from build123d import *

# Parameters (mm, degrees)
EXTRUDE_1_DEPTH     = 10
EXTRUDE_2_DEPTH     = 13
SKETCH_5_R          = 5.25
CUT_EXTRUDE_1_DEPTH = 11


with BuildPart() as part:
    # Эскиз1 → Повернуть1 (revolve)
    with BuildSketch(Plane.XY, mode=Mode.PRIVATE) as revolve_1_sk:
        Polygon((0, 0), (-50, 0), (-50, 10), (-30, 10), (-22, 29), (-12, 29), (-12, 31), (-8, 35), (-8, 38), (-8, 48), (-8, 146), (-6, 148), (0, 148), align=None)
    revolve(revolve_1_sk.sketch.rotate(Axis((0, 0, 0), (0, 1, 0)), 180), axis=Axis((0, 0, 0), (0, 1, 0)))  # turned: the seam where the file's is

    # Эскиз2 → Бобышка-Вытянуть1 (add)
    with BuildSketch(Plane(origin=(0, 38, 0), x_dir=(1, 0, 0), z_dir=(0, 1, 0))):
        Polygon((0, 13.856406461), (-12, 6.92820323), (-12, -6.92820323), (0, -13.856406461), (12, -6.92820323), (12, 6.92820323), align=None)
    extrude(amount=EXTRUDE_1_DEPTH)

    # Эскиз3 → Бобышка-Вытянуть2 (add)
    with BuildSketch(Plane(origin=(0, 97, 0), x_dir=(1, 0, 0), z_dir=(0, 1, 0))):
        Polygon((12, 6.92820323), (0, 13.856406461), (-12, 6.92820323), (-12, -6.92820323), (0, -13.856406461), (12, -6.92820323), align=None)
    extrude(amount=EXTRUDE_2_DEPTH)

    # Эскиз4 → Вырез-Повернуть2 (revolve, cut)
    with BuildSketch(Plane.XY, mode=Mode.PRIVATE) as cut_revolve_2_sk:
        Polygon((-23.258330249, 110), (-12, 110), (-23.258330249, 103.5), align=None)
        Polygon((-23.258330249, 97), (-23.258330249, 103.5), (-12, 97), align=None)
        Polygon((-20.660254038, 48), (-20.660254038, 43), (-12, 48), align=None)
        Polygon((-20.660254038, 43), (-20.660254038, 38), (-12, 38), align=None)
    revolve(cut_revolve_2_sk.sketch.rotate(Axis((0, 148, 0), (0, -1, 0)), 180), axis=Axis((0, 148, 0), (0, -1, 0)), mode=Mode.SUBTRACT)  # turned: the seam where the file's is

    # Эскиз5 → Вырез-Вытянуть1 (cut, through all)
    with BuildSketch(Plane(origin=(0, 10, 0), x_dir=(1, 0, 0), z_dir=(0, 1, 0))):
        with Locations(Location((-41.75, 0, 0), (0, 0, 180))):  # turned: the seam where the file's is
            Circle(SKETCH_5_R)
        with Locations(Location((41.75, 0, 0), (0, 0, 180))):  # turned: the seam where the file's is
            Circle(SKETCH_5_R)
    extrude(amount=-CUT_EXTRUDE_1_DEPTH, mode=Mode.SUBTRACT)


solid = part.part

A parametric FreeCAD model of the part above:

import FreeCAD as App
import Part
import Sketcher
Q = App.Units.Quantity


def add_polygon(sketch, points):
    """Adds a closed chain of lines whose ends are joined by coincident constraints."""
    first, n = sketch.GeometryCount, len(points)
    for a, b in zip(points, points[1:] + points[:1]):
        sketch.addGeometry(Part.LineSegment(App.Vector(*a, 0), App.Vector(*b, 0)), False)
    for i in range(n):
        sketch.addConstraint(Sketcher.Constraint("Coincident", first + i, 2, first + (i + 1) % n, 1))

doc = App.newDocument("Part")
body = doc.addObject("PartDesign::Body", "Body")

# Sketch on XY plane
sketch1 = body.newObject("Sketcher::SketchObject", "Sketch")
sketch1.AttachmentSupport = (doc.getObject("XY_Plane"), [""])
sketch1.MapMode = "FlatFace"
add_polygon(sketch1, [(-50, 0), (0, 0), (0, 148), (-6, 148), (-8, 146), (-8, 35), (-12, 31), (-12, 29), (-22, 29), (-30, 10), (-50, 10)])  # lines 0-10
sketch1.addConstraint([
    Sketcher.Constraint("Horizontal", 0),
    Sketcher.Constraint("Vertical", 1),
    Sketcher.Constraint("Horizontal", 2),
    Sketcher.Constraint("Vertical", 4),
    Sketcher.Constraint("Vertical", 6),
    Sketcher.Constraint("Horizontal", 7),
    Sketcher.Constraint("Horizontal", 9),
    Sketcher.Constraint("Vertical", 10),
    Sketcher.Constraint("Coincident", 0, 2, -1, 1),
    Sketcher.Constraint("Parallel", 3, 5),
    Sketcher.Constraint("Equal", 7, 10),
    Sketcher.Constraint("DistanceX", 0, 1, 0, 2, Q("50 mm")),
    Sketcher.Constraint("DistanceX", 2, 2, 2, 1, Q("6 mm")),
    Sketcher.Constraint("DistanceX", 7, 2, 7, 1, Q("10 mm")),
    Sketcher.Constraint("DistanceX", 9, 2, 9, 1, Q("20 mm")),
    Sketcher.Constraint("DistanceY", 1, 1, 1, 2, Q("148 mm")),
    Sketcher.Constraint("DistanceY", 4, 2, 4, 1, Q("111 mm")),
    Sketcher.Constraint("DistanceY", 6, 2, 6, 1, Q("2 mm")),
    Sketcher.Constraint("Angle", 3, Q("-135 deg")),
    Sketcher.Constraint("DistanceX", 3, 2, -1, 1, Q("8 mm")),
    Sketcher.Constraint("DistanceX", 5, 2, -1, 1, Q("12 mm")),
])
revolution = body.newObject("PartDesign::Revolution", "Revolution")
revolution.Profile = sketch1
revolution.ReferenceAxis = (sketch1, ["V_Axis"])
revolution.Angle = 360

# Sketch on XZ plane
sketch2 = body.newObject("Sketcher::SketchObject", "Sketch001")
sketch2.AttachmentSupport = (doc.getObject("XZ_Plane"), [""])
sketch2.MapMode = "FlatFace"
sketch2.AttachmentOffset = App.Placement(App.Vector(0, 0, -38), App.Rotation())
add_polygon(sketch2, [(0, -14), (-12, -7), (-12, 7), (0, 14), (12, 7), (12, -7)])  # lines 0-5
sketch2.addConstraint([
    Sketcher.Constraint("Vertical", 1),
    Sketcher.Constraint("Vertical", 4),
    Sketcher.Constraint("Symmetric", 0, 2, 3, 2, -1, 1),
    Sketcher.Constraint("Symmetric", 2, 2, 5, 2, -1, 1),
    Sketcher.Constraint("PointOnObject", 2, 2, -2),
    Sketcher.Constraint("Parallel", 2, 5),
    Sketcher.Constraint("Horizontal", 1, 2, 3, 2),
    Sketcher.Constraint("Angle", 0, Q("150 deg")),
    Sketcher.Constraint("DistanceX", 0, 2, -1, 1, Q("12 mm")),
    Sketcher.Constraint("DistanceY", 1, 1, 1, 2, Q("13.856406 mm")),
])
pad1 = body.newObject("PartDesign::Pad", "Pad")
pad1.Profile = sketch2
pad1.Length = 10
pad1.Reversed = True

# Sketch on XZ plane
sketch3 = body.newObject("Sketcher::SketchObject", "Sketch002")
sketch3.AttachmentSupport = (doc.getObject("XZ_Plane"), [""])
sketch3.MapMode = "FlatFace"
sketch3.AttachmentOffset = App.Placement(App.Vector(0, 0, -97), App.Rotation())
add_polygon(sketch3, [(12, -7), (0, -14), (-12, -7), (-12, 7), (0, 14), (12, 7)])  # lines 0-5
sketch3.addConstraint([
    Sketcher.Constraint("Vertical", 2),
    Sketcher.Constraint("Vertical", 5),
    Sketcher.Constraint("Symmetric", 0, 2, 3, 2, -1, 1),
    Sketcher.Constraint("Symmetric", 1, 2, 4, 2, -1, 1),
    Sketcher.Constraint("PointOnObject", 0, 2, -2),
    Sketcher.Constraint("Parallel", 0, 3),
    Sketcher.Constraint("Horizontal", 2, 2, 4, 2),
    Sketcher.Constraint("Angle", 0, Q("-150 deg")),
    Sketcher.Constraint("DistanceX", 1, 2, -1, 1, Q("12 mm")),
    Sketcher.Constraint("DistanceY", 2, 1, 2, 2, Q("13.856406 mm")),
])
pad2 = body.newObject("PartDesign::Pad", "Pad001")
pad2.Profile = sketch3
pad2.Length = 13
pad2.Reversed = True

# Sketch on XY plane
sketch4 = body.newObject("Sketcher::SketchObject", "Sketch003")
sketch4.AttachmentSupport = (doc.getObject("XY_Plane"), [""])
sketch4.MapMode = "FlatFace"
add_polygon(sketch4, [(-12, 110), (-23, 110), (-23, 104)])  # lines 0-2
add_polygon(sketch4, [(-23, 104), (-23, 97), (-12, 97)])  # lines 3-5
add_polygon(sketch4, [(-21, 48), (-21, 43), (-12, 48)])  # lines 6-8
add_polygon(sketch4, [(-21, 43), (-21, 38), (-12, 38)])  # lines 9-11
sketch4.addConstraint([
    Sketcher.Constraint("Horizontal", 0),
    Sketcher.Constraint("Vertical", 1),
    Sketcher.Constraint("Vertical", 3),
    Sketcher.Constraint("Horizontal", 4),
    Sketcher.Constraint("Vertical", 6),
    Sketcher.Constraint("Horizontal", 8),
    Sketcher.Constraint("Vertical", 9),
    Sketcher.Constraint("Horizontal", 10),
    Sketcher.Constraint("Coincident", 5, 2, 1, 2),
    Sketcher.Constraint("Coincident", 11, 2, 6, 2),
    Sketcher.Constraint("Parallel", 2, 7),
    Sketcher.Constraint("Parallel", 5, 11),
    Sketcher.Constraint("Vertical", 2, 2, 4, 2),
    Sketcher.Constraint("Vertical", 4, 2, 7, 2),
    Sketcher.Constraint("Vertical", 7, 2, 10, 2),
    Sketcher.Constraint("Equal", 1, 3),
    Sketcher.Constraint("DistanceY", 6, 2, 6, 1, Q("5 mm")),
    Sketcher.Constraint("Angle", 2, Q("30 deg")),
    Sketcher.Constraint("Distance", 2, Q("13 mm")),
    Sketcher.Constraint("DistanceY", -1, 1, 0, 2, Q("110 mm")),
    Sketcher.Constraint("DistanceX", 2, 2, -1, 1, Q("12 mm")),
    Sketcher.Constraint("DistanceY", -1, 1, 6, 2, Q("43 mm")),
])
groove = body.newObject("PartDesign::Groove", "Groove")
groove.Profile = sketch4
groove.ReferenceAxis = (sketch4, ["V_Axis"])
groove.Angle = 360

# Sketch on XZ plane
sketch5 = body.newObject("Sketcher::SketchObject", "Sketch004")
sketch5.AttachmentSupport = (doc.getObject("XZ_Plane"), [""])
sketch5.MapMode = "FlatFace"
sketch5.AttachmentOffset = App.Placement(App.Vector(0, 0, -10), App.Rotation())
sketch5.addGeometry([
    Part.Circle(App.Vector(-42, 0, 0), App.Vector(0, 0, 1), 5),
    Part.Circle(App.Vector(42, 0, 0), App.Vector(0, 0, 1), 5),
], False)
sketch5.addConstraint([
    Sketcher.Constraint("Equal", 0, 1),
    Sketcher.Constraint("Symmetric", 0, 3, 1, 3, -1, 1),
    Sketcher.Constraint("PointOnObject", 0, 3, -1),
    Sketcher.Constraint("Diameter", 0, Q("10.5 mm")),
    Sketcher.Constraint("DistanceX", 0, 3, 1, 3, Q("83.5 mm")),
])
pocket1 = body.newObject("PartDesign::Pocket", "Pocket")
pocket1.Profile = sketch5
pocket1.Type = "ThroughAll"
pocket1.Reversed = True

doc.recompute()
